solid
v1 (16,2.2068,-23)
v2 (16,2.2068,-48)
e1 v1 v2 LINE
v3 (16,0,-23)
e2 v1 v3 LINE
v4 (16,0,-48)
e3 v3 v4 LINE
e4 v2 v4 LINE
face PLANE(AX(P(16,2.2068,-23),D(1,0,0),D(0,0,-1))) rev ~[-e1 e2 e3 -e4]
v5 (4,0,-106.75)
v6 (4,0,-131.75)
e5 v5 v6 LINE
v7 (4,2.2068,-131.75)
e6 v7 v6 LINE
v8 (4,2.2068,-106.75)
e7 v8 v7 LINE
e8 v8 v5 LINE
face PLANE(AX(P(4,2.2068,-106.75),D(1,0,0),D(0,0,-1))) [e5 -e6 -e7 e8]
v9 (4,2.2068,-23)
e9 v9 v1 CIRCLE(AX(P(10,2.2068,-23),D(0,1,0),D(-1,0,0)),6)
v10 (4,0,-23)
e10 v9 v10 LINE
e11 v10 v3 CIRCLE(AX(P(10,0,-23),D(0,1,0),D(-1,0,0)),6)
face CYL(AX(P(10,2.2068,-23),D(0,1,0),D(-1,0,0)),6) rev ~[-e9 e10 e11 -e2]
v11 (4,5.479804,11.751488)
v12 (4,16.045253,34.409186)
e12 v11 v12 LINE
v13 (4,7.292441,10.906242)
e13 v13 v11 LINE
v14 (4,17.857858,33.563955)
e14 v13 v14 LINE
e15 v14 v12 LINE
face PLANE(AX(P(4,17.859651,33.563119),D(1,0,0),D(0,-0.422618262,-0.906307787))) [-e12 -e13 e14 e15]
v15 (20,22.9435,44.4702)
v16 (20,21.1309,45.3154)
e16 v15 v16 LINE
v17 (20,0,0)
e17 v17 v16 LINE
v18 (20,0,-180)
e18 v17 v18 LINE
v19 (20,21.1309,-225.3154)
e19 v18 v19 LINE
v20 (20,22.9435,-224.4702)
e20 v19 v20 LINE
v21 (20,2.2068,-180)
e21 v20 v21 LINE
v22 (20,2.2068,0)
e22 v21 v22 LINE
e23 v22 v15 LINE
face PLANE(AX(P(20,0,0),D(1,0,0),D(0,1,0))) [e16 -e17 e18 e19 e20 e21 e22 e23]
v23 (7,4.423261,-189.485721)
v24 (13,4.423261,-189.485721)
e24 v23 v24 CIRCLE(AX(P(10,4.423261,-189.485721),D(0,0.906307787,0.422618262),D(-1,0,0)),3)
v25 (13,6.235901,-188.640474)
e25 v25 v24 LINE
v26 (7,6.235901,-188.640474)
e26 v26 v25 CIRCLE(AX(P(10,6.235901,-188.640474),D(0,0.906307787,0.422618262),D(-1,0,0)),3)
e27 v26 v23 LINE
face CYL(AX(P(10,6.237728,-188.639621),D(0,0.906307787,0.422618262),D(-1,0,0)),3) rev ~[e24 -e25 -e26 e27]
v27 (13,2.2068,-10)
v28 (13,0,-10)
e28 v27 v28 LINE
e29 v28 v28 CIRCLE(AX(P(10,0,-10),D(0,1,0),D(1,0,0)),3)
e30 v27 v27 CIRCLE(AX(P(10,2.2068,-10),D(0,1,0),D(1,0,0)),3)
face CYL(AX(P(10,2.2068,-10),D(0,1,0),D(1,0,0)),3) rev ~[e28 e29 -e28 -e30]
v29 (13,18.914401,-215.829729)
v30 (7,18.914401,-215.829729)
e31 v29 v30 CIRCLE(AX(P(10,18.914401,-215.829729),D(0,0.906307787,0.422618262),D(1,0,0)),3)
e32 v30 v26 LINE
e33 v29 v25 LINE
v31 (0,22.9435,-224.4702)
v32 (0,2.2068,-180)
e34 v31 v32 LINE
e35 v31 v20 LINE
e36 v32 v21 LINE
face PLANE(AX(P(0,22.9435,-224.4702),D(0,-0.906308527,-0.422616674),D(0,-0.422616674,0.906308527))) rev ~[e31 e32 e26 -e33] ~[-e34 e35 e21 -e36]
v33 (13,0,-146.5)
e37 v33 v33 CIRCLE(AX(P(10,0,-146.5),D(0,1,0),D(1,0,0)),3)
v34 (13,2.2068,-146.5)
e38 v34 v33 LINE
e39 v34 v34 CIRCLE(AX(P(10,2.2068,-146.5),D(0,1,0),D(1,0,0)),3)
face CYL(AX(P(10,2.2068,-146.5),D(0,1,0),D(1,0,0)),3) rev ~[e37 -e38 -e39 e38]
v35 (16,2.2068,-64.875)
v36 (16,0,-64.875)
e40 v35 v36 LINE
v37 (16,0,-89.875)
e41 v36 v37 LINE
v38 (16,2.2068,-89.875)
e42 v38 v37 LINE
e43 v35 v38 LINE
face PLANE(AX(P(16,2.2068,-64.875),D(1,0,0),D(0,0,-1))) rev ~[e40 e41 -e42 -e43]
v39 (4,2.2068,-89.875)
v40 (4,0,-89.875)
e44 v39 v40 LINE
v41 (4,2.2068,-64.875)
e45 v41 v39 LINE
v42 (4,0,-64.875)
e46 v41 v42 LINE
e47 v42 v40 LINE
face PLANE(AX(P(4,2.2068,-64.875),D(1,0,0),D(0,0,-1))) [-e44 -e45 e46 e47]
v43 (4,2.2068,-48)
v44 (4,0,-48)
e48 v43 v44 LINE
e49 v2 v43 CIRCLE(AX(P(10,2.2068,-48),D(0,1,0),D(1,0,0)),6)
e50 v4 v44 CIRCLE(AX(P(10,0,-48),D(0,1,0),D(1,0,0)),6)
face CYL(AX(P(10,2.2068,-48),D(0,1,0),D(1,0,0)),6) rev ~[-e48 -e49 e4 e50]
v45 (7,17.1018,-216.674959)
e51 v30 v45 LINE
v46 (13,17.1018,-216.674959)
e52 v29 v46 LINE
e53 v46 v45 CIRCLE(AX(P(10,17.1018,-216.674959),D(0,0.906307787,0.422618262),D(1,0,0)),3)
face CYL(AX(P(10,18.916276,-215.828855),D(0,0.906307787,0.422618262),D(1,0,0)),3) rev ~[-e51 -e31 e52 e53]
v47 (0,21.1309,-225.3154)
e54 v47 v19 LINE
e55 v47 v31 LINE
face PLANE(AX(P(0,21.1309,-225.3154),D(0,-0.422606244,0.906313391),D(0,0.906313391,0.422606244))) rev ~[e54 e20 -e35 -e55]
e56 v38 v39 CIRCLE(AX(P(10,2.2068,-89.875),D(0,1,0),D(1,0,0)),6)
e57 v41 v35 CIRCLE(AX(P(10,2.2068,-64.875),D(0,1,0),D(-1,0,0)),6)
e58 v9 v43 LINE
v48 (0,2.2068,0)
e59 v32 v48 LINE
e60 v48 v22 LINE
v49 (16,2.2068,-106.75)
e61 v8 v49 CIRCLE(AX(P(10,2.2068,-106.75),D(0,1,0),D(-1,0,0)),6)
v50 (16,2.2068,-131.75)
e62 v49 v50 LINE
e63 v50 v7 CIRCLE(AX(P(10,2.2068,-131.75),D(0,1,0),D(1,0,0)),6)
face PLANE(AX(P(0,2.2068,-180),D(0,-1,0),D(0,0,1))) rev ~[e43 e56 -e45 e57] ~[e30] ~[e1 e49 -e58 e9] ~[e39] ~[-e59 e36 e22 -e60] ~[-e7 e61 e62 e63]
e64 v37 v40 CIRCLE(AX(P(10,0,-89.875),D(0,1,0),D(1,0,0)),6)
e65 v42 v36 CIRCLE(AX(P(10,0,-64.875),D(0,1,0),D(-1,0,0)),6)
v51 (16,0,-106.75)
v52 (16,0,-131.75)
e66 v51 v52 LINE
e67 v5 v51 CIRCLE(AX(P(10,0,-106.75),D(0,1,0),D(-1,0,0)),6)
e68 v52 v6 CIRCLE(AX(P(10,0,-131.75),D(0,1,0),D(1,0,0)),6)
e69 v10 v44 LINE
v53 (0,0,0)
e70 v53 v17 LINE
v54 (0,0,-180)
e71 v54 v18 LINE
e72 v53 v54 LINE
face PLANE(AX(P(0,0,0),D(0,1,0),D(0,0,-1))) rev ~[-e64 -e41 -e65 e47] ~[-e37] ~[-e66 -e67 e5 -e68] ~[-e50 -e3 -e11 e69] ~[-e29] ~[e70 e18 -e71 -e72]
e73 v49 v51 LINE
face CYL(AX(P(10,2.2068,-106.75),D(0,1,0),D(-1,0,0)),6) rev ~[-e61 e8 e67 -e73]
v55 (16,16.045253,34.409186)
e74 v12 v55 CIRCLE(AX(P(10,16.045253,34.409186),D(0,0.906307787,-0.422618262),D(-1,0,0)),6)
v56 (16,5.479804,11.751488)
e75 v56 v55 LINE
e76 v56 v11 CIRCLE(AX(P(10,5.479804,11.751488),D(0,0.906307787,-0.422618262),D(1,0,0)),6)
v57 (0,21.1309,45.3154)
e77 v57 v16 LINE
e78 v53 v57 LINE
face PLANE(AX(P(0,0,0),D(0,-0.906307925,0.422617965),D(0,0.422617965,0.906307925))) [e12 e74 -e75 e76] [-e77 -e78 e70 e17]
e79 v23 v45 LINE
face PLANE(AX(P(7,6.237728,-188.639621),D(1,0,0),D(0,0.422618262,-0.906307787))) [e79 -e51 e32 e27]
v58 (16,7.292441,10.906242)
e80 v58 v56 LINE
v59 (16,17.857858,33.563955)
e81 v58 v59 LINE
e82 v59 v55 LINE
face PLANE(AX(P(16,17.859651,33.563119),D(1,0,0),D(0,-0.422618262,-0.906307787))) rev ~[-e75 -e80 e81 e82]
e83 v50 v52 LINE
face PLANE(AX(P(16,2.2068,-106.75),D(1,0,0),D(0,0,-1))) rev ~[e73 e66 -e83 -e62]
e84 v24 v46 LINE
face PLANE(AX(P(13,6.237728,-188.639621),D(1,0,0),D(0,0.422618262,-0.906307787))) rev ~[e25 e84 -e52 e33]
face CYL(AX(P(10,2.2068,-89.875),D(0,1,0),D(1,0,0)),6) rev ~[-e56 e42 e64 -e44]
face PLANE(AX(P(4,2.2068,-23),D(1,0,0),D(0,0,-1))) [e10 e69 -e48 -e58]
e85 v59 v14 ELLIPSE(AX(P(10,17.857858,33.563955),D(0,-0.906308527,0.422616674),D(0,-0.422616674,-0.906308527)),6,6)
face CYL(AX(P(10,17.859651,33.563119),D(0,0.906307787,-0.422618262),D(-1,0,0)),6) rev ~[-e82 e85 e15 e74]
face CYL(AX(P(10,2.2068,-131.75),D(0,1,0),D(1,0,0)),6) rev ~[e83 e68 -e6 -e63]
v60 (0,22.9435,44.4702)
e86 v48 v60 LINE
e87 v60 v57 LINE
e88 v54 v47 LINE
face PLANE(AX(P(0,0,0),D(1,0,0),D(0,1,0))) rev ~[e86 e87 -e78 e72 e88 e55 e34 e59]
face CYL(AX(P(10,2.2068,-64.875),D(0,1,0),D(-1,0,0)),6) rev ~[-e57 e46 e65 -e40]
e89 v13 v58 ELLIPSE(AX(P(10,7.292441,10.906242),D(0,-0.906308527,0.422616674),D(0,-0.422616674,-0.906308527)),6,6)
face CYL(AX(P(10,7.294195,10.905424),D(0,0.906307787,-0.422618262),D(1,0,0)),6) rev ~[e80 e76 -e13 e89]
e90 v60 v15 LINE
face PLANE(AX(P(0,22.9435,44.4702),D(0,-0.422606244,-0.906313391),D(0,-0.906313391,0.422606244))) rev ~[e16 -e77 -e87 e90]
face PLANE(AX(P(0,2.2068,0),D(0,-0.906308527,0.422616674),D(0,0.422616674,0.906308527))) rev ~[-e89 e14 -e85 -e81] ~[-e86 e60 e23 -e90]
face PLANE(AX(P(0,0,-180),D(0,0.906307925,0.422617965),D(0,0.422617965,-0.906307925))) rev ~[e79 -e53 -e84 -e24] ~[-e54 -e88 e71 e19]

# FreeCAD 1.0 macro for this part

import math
import FreeCAD as App
import Part
import Sketcher

V = App.Vector
Q = App.Units.Quantity


def add_polygon(sketch, points):
    """Adds a closed chain of lines whose ends are joined by coincident constraints."""
    first, n = sketch.GeometryCount, len(points)
    for a, b in zip(points, points[1:] + points[:1]):
        sketch.addGeometry(Part.LineSegment(App.Vector(*a, 0), App.Vector(*b, 0)), False)
    for i in range(n):
        sketch.addConstraint(Sketcher.Constraint("Coincident", first + i, 2, first + (i + 1) % n, 1))

doc = App.newDocument("Part")
body = doc.addObject("PartDesign::Body", "Body")

# Sketch on YZ plane
sketch1 = body.newObject("Sketcher::SketchObject", "Sketch")
sketch1.AttachmentSupport = (doc.getObject("YZ_Plane"), [""])
sketch1.MapMode = "FlatFace"
add_polygon(sketch1, [(21.1309, 45.3154), (0, 0), (0, -180), (21.1309, -225.3154), (22.9435, -224.4702), (2.2068, -180), (2.2068, 0), (22.9435, 44.4702)])  # lines 0-7
sketch1.addConstraint([
    Sketcher.Constraint("Vertical", 1),
    Sketcher.Constraint("Vertical", 5),
    Sketcher.Constraint("Coincident", 0, 2, -1, 1),
    Sketcher.Constraint("PointOnObject", 5, 2, -1),
    Sketcher.Constraint("Perpendicular", 2, 3),
    Sketcher.Constraint("Perpendicular", 3, 4),
    Sketcher.Constraint("Parallel", 0, 6),
    Sketcher.Constraint("Perpendicular", 6, 7),
    Sketcher.Constraint("Horizontal", 1, 2, 4, 2),
    Sketcher.Constraint("Vertical", 3, 2, 6, 2),
    Sketcher.Constraint("Vertical", 2, 2, 7, 2),
    Sketcher.Constraint("DistanceY", 1, 2, 1, 1, 180.0),
    Sketcher.Constraint("Distance", 0, 50.0),
    Sketcher.Constraint("Distance", 3, 2.0),
    Sketcher.Constraint("Angle", 0, Q("-115 deg")),
])
pad1 = body.newObject("PartDesign::Pad", "Pad")
pad1.Profile = sketch1
pad1.Length = 20

# Sketch on XZ plane
sketch2 = body.newObject("Sketcher::SketchObject", "Sketch001")
sketch2.AttachmentSupport = (doc.getObject("XZ_Plane"), [""])
sketch2.MapMode = "FlatFace"
sketch2.AttachmentOffset = App.Placement(V(0, 0, -2.2068), App.Rotation())
sketch2.addGeometry([
    Part.Circle(V(10, -10, 0), V(0, 0, 1), 3),
    Part.Circle(V(10, -146.5, 0), V(0, 0, 1), 3),
], False)
sketch2.addConstraint([
    Sketcher.Constraint("Equal", 0, 1),
    Sketcher.Constraint("Vertical", 0, 3, 1, 3),
    Sketcher.Constraint("Diameter", 0, 6.0),
    Sketcher.Constraint("DistanceX", -1, 1, 0, 3, 10.0),
    Sketcher.Constraint("DistanceY", 0, 3, -1, 1, 10.0),
    Sketcher.Constraint("DistanceY", 1, 3, 0, 3, 136.5),
])
pocket1 = body.newObject("PartDesign::Pocket", "Pocket")
pocket1.Profile = sketch2
pocket1.Length = 25
pocket1.Reversed = True

# Sketch on an angled plane
sketch3 = body.newObject("Sketcher::SketchObject", "Sketch002")
sketch3.Placement = App.Placement(V(0, 2.2068, -180), App.Rotation(V(1, 0, 0), V(0, 0.422618262, -0.906307787), V(0, 0.906307787, 0.422618262), "ZXY"))
sketch3.addGeometry([
    Part.LineSegment(V(7, 39.5337, 0), V(7, 9.5337, 0)),
    Part.ArcOfCircle(Part.Circle(V(10, 9.5337, 0), V(0, 0, 1), 3), math.radians(180), math.radians(360)),
    Part.LineSegment(V(13, 9.5337, 0), V(13, 39.5337, 0)),
    Part.ArcOfCircle(Part.Circle(V(10, 39.5337, 0), V(0, 0, 1), 3), math.radians(0), math.radians(180)),
], False)
sketch3.addConstraint([
    Sketcher.Constraint("Tangent", 0, 2, 1, 1),
    Sketcher.Constraint("Tangent", 1, 2, 2, 1),
    Sketcher.Constraint("Tangent", 2, 2, 3, 1),
    Sketcher.Constraint("Tangent", 3, 2, 0, 1),
    Sketcher.Constraint("Vertical", 0),
    Sketcher.Constraint("Vertical", 2),
    Sketcher.Constraint("Radius", 1, 3.0),
    Sketcher.Constraint("DistanceY", 0, 2, 0, 1, 30.0),
    Sketcher.Constraint("DistanceX", -1, 1, 1, 3, 10.0),
    Sketcher.Constraint("DistanceY", -1, 1, 1, 3, 9.5337),
])
pocket2 = body.newObject("PartDesign::Pocket", "Pocket001")
pocket2.Profile = sketch3
pocket2.Length = 10

# Sketch on an angled plane
sketch4 = body.newObject("Sketcher::SketchObject", "Sketch003")
sketch4.Placement = App.Placement(V(0, 22.9435, 44.4702), App.Rotation(V(1, 0, 0), V(0, -0.422618262, -0.906307787), V(0, 0.906307787, -0.422618262), "ZXY"))
sketch4.addGeometry([
    Part.LineSegment(V(4, 37.0337, 0), V(4, 12.0337, 0)),
    Part.ArcOfCircle(Part.Circle(V(10, 12.0337, 0), V(0, 0, 1), 6), math.radians(180), math.radians(360)),
    Part.LineSegment(V(16, 12.0337, 0), V(16, 37.0337, 0)),
    Part.ArcOfCircle(Part.Circle(V(10, 37.0337, 0), V(0, 0, 1), 6), math.radians(0), math.radians(180)),
], False)
sketch4.addConstraint([
    Sketcher.Constraint("Tangent", 0, 2, 1, 1),
    Sketcher.Constraint("Tangent", 1, 2, 2, 1),
    Sketcher.Constraint("Tangent", 2, 2, 3, 1),
    Sketcher.Constraint("Tangent", 3, 2, 0, 1),
    Sketcher.Constraint("Vertical", 0),
    Sketcher.Constraint("Vertical", 2),
    Sketcher.Constraint("Radius", 1, 6.0),
    Sketcher.Constraint("DistanceY", 0, 2, 0, 1, 25.0),
    Sketcher.Constraint("DistanceX", -1, 1, 1, 3, 10.0),
    Sketcher.Constraint("DistanceY", -1, 1, 1, 3, 12.0337),
])
pocket3 = body.newObject("PartDesign::Pocket", "Pocket002")
pocket3.Profile = sketch4
pocket3.Length = 10

# Sketch on XZ plane
sketch5 = body.newObject("Sketcher::SketchObject", "Sketch004")
sketch5.AttachmentSupport = (doc.getObject("XZ_Plane"), [""])
sketch5.MapMode = "FlatFace"
sketch5.AttachmentOffset = App.Placement(V(0, 0, -2.2068), App.Rotation())
sketch5.addGeometry([
    Part.LineSegment(V(4, -48, 0), V(4, -23, 0)),  # 0
    Part.ArcOfCircle(Part.Circle(V(10, -23, 0), V(0, 0, 1), 6), math.radians(0), math.radians(180)),  # 1
    Part.LineSegment(V(16, -23, 0), V(16, -48, 0)),  # 2
    Part.ArcOfCircle(Part.Circle(V(10, -48, 0), V(0, 0, 1), 6), math.radians(180), math.radians(360)),  # 3
    Part.LineSegment(V(4, -89.875, 0), V(4, -64.875, 0)),  # 4
    Part.ArcOfCircle(Part.Circle(V(10, -64.875, 0), V(0, 0, 1), 6), math.radians(0), math.radians(180)),  # 5
    Part.LineSegment(V(16, -64.875, 0), V(16, -89.875, 0)),  # 6
    Part.ArcOfCircle(Part.Circle(V(10, -89.875, 0), V(0, 0, 1), 6), math.radians(180), math.radians(360)),  # 7
    Part.LineSegment(V(4, -131.75, 0), V(4, -106.75, 0)),  # 8
    Part.ArcOfCircle(Part.Circle(V(10, -106.75, 0), V(0, 0, 1), 6), math.radians(0), math.radians(180)),  # 9
    Part.LineSegment(V(16, -106.75, 0), V(16, -131.75, 0)),  # 10
    Part.ArcOfCircle(Part.Circle(V(10, -131.75, 0), V(0, 0, 1), 6), math.radians(180), math.radians(360)),  # 11
], False)
sketch5.addConstraint([
    Sketcher.Constraint("Tangent", 0, 2, 1, 2),
    Sketcher.Constraint("Tangent", 1, 1, 2, 1),
    Sketcher.Constraint("Tangent", 2, 2, 3, 2),
    Sketcher.Constraint("Tangent", 3, 1, 0, 1),
    Sketcher.Constraint("Tangent", 4, 2, 5, 2),
    Sketcher.Constraint("Tangent", 5, 1, 6, 1),
    Sketcher.Constraint("Tangent", 6, 2, 7, 2),
    Sketcher.Constraint("Tangent", 7, 1, 4, 1),
    Sketcher.Constraint("Tangent", 8, 2, 9, 2),
    Sketcher.Constraint("Tangent", 9, 1, 10, 1),
    Sketcher.Constraint("Tangent", 10, 2, 11, 2),
    Sketcher.Constraint("Tangent", 11, 1, 8, 1),
    Sketcher.Constraint("Vertical", 0),
    Sketcher.Constraint("Vertical", 2),
    Sketcher.Constraint("Vertical", 4),
    Sketcher.Constraint("Vertical", 6),
    Sketcher.Constraint("Vertical", 8),
    Sketcher.Constraint("Vertical", 10),
    Sketcher.Constraint("Equal", 3, 5),
    Sketcher.Constraint("Equal", 7, 9),
    Sketcher.Constraint("Vertical", 3, 3, 5, 3),
    Sketcher.Constraint("Vertical", 7, 3, 9, 3),
    Sketcher.Constraint("Equal", 2, 4),
    Sketcher.Constraint("Equal", 6, 8),
    Sketcher.Constraint("Radius", 1, 6.0),
    Sketcher.Constraint("DistanceY", 0, 1, 0, 2, 25.0),
    Sketcher.Constraint("DistanceX", -1, 1, 1, 3, 10.0),
    Sketcher.Constraint("DistanceY", 1, 3, -1, 1, 23.0),
    Sketcher.Constraint("DistanceY", 5, 3, 1, 3, 41.875),
    Sketcher.Constraint("DistanceY", 9, 3, 5, 3, 41.875),
])
pocket4 = body.newObject("PartDesign::Pocket", "Pocket003")
pocket4.Profile = sketch5
pocket4.Length = 10
pocket4.Reversed = True

doc.recompute()
